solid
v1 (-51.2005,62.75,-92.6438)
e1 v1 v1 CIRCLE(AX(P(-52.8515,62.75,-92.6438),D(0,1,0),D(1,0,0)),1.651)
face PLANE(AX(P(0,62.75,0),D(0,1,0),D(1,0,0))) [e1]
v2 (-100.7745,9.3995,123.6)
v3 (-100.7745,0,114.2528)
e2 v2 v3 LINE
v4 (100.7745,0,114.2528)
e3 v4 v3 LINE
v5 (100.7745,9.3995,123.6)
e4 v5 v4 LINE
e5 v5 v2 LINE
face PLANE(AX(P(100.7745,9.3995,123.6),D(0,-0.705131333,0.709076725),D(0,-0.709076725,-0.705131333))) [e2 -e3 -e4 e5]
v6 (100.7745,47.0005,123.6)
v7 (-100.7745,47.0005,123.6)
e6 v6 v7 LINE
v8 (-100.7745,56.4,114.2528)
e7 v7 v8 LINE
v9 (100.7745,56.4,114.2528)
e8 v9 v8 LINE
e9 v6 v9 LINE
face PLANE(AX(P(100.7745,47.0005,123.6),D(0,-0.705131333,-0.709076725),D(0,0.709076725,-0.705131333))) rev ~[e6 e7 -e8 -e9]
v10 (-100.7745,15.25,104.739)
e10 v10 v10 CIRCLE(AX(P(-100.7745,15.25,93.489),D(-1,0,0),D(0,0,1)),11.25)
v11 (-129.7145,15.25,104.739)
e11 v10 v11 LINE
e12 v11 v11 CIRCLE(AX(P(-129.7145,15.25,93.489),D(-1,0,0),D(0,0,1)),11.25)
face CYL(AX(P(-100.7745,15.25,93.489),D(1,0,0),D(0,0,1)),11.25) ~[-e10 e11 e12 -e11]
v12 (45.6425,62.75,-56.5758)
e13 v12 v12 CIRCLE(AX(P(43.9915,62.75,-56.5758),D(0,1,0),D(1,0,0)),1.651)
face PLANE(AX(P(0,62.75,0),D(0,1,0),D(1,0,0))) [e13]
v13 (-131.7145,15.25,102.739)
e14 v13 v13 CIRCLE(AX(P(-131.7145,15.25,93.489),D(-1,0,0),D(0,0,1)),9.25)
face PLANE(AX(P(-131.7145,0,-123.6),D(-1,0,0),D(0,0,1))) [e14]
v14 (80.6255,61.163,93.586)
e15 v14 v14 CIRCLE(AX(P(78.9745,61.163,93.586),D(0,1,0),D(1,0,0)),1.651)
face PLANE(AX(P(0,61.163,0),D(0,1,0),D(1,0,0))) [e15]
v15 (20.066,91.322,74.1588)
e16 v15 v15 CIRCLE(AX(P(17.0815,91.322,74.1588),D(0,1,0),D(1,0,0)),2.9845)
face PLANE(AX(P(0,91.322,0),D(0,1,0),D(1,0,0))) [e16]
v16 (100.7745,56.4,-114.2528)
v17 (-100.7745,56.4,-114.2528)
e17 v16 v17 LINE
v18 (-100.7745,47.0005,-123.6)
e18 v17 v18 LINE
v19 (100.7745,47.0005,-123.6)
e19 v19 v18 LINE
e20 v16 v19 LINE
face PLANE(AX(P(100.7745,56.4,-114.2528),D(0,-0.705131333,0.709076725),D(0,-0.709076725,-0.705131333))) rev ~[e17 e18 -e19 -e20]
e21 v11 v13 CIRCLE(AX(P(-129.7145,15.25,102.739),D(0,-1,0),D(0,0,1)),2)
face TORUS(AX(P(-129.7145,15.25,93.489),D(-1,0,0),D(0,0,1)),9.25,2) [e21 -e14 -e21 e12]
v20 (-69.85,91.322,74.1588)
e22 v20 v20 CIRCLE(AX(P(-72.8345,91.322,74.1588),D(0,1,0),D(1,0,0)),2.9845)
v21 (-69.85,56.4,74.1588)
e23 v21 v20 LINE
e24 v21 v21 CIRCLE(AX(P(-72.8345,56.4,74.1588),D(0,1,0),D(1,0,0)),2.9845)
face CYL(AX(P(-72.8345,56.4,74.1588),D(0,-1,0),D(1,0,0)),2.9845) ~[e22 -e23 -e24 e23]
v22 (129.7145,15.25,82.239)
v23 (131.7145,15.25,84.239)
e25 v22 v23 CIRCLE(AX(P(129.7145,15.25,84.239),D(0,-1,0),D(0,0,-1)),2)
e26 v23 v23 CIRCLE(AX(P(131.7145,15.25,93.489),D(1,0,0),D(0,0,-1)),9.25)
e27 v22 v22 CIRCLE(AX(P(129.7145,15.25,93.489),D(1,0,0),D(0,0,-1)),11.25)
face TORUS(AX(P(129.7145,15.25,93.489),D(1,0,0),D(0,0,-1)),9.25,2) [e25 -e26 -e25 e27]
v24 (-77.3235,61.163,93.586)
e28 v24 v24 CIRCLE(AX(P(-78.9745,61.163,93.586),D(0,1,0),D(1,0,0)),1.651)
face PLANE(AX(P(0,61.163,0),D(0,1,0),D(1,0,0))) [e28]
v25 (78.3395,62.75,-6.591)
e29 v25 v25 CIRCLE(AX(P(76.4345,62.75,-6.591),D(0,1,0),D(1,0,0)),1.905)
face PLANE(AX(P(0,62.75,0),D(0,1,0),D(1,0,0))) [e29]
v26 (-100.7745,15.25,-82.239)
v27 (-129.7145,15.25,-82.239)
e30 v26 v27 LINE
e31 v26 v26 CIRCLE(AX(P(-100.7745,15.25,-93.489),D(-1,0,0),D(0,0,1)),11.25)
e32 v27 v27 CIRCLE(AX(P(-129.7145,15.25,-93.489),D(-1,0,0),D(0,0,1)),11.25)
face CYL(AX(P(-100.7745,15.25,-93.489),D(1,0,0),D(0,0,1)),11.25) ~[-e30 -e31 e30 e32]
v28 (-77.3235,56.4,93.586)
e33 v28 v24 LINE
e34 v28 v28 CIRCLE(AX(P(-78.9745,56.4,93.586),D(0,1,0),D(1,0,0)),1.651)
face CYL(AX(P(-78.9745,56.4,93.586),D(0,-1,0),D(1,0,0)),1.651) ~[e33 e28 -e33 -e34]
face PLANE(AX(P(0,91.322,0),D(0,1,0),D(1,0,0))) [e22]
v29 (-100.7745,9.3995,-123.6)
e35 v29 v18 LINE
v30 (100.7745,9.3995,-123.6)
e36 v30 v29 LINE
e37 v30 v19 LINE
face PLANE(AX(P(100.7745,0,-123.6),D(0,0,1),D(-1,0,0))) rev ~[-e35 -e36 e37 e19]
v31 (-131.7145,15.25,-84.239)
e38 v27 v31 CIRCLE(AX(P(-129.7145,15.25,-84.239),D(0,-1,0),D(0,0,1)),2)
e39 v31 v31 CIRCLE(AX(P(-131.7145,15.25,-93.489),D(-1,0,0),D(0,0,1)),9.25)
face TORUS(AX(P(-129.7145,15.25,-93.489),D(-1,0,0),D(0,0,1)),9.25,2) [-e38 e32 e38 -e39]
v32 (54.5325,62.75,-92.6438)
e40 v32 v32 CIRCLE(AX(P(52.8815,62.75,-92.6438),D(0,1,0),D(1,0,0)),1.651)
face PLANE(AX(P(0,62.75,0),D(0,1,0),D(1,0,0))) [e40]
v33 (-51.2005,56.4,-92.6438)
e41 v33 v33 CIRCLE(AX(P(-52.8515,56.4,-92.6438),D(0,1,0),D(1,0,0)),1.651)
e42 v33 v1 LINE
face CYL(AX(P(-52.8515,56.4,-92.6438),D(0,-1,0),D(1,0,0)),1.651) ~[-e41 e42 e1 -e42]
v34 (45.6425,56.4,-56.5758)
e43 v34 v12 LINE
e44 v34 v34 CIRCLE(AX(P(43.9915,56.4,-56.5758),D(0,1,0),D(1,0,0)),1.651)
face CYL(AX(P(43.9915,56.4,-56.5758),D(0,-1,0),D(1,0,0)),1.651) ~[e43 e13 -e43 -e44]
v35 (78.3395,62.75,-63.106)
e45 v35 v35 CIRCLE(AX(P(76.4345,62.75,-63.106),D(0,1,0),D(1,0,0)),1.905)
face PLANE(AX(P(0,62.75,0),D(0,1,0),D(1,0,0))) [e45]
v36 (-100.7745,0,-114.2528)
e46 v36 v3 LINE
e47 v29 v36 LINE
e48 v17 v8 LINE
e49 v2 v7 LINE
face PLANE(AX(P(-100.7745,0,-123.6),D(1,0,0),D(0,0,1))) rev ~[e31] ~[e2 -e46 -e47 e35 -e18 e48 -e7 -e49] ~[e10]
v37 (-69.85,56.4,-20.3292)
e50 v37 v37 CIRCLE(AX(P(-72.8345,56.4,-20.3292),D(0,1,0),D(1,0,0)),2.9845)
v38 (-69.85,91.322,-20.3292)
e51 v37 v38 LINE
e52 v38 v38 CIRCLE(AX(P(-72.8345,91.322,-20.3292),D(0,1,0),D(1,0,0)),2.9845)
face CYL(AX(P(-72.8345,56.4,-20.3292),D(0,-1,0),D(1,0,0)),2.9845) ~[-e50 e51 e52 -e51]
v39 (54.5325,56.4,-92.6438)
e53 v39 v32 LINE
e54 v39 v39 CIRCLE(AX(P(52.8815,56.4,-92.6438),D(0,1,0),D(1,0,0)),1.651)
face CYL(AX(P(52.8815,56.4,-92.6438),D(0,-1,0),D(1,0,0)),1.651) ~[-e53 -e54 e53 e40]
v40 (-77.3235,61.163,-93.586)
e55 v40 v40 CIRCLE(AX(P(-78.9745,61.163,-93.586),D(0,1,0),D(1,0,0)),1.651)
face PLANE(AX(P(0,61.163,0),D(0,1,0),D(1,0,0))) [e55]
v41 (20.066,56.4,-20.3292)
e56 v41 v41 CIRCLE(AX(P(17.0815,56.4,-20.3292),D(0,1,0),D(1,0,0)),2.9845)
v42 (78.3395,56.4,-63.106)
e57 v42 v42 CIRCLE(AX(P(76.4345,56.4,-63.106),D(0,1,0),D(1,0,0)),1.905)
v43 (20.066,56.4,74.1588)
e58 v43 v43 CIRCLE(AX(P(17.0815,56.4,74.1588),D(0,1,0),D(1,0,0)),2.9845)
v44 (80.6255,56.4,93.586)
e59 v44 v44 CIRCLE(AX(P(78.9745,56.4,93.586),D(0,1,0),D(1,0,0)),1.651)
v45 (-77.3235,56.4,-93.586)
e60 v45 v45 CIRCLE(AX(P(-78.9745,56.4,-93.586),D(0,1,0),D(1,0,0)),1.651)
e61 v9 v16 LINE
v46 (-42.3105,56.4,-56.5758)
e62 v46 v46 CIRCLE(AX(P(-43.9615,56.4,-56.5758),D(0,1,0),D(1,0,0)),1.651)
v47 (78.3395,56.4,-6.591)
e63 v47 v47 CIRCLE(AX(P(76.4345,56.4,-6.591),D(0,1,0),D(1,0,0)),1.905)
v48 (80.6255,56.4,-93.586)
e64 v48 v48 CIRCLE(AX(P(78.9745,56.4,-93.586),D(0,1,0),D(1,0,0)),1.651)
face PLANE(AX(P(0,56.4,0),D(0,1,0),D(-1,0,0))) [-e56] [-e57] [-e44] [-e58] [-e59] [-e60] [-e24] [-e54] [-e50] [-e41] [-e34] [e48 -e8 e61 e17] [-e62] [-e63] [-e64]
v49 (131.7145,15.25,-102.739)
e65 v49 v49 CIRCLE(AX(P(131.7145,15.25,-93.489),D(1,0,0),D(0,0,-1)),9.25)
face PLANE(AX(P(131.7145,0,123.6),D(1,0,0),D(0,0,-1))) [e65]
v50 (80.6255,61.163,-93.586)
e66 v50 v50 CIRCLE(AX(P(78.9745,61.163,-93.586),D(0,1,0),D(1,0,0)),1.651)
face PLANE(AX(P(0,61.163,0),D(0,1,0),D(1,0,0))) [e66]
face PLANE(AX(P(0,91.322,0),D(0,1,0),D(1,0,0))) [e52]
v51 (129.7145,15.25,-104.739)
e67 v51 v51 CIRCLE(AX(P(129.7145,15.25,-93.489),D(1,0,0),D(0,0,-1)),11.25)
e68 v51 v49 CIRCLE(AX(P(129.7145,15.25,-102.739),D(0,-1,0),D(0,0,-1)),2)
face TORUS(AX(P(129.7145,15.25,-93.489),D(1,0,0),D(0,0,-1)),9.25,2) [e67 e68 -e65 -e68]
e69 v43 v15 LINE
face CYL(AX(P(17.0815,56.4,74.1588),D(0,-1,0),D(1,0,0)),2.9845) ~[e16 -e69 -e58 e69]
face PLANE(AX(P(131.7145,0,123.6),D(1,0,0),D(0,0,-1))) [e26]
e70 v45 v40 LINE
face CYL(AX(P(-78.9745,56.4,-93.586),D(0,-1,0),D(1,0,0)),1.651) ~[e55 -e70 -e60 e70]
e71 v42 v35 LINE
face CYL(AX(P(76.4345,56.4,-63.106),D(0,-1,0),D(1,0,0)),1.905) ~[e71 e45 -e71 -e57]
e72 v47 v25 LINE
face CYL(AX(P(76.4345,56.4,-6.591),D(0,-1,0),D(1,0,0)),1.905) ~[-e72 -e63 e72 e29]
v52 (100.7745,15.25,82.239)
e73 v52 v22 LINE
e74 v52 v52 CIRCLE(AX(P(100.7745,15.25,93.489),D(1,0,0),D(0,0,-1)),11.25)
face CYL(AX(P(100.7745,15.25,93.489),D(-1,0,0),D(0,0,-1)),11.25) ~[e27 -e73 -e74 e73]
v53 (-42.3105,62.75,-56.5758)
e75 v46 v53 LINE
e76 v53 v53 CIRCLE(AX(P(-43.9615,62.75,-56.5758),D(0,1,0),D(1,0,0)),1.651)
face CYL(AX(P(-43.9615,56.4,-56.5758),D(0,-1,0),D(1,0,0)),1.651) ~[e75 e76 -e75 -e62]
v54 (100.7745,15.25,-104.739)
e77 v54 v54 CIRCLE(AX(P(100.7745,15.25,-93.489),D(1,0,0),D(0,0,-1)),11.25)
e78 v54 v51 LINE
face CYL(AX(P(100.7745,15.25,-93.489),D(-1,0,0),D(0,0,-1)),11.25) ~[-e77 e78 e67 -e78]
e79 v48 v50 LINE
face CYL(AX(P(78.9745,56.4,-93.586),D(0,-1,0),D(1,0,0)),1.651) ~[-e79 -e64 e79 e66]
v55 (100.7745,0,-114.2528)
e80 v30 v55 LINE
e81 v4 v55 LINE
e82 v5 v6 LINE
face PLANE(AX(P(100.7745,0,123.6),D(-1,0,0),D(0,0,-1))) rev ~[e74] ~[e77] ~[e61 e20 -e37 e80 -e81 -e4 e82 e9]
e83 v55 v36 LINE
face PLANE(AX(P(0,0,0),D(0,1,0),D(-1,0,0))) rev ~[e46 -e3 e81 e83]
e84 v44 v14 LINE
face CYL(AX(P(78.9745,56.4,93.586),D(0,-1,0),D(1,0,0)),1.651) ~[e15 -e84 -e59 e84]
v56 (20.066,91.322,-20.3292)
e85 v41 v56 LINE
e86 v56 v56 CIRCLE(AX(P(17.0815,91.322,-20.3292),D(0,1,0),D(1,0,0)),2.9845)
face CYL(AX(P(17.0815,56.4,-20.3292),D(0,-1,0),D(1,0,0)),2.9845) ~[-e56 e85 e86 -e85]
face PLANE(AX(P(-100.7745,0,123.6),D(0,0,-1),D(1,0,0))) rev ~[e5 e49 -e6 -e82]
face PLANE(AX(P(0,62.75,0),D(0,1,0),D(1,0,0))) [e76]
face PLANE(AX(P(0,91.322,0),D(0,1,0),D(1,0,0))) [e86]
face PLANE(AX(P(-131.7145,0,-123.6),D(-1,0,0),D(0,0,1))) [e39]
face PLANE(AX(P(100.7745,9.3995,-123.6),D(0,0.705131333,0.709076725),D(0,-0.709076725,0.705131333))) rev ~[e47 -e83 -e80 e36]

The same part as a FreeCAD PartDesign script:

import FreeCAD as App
import Part
import Sketcher
from FreeCAD import Vector
Q = App.Units.Quantity


def edges_at(feature, points):
    """Names of the edges that pass closest to the given points."""
    edges = feature.Shape.Edges
    near = lambda p: min(range(len(edges)), key=lambda i: edges[i].distToShape(Part.Vertex(*p))[0])
    return sorted({f"Edge{near(p) + 1}" for p in points})

doc = App.newDocument("Part")
body = doc.addObject("PartDesign::Body", "Body")

# Sketch on XZ plane
sketch1 = body.newObject("Sketcher::SketchObject", "Sketch")
sketch1.AttachmentSupport = (doc.getObject("XZ_Plane"), [""])
sketch1.MapMode = "FlatFace"
sketch1.addGeometry([
    Part.LineSegment(Vector(-101, -124, 0), Vector(-101, 124, 0)),
    Part.LineSegment(Vector(-101, 124, 0), Vector(101, 124, 0)),
    Part.LineSegment(Vector(101, 124, 0), Vector(101, -124, 0)),
    Part.LineSegment(Vector(101, -124, 0), Vector(-101, -124, 0)),
], False)
sketch1.addConstraint([
    Sketcher.Constraint("Coincident", 0, 2, 1, 1),
    Sketcher.Constraint("Coincident", 1, 2, 2, 1),
    Sketcher.Constraint("Coincident", 2, 2, 3, 1),
    Sketcher.Constraint("Coincident", 3, 2, 0, 1),
    Sketcher.Constraint("Vertical", 0),
    Sketcher.Constraint("Horizontal", 1),
    Sketcher.Constraint("Vertical", 2),
    Sketcher.Constraint("Horizontal", 3),
    Sketcher.Constraint("Symmetric", 0, 2, 2, 2, -1, 1),
    Sketcher.Constraint("DistanceX", 1, 1, 1, 2, Q("7.935 in")),
    Sketcher.Constraint("DistanceY", 0, 1, 0, 2, 247.2),
])
pad1 = body.newObject("PartDesign::Pad", "Pad")
pad1.Profile = sketch1
pad1.Length = 56.4
pad1.Reversed = True

# Sketch on YZ plane
sketch2 = body.newObject("Sketcher::SketchObject", "Sketch001")
sketch2.AttachmentSupport = (doc.getObject("YZ_Plane"), [""])
sketch2.MapMode = "FlatFace"
sketch2.AttachmentOffset = App.Placement(Vector(0, 0, 3.9675 * 25.4), App.Rotation())
sketch2.addGeometry([
    Part.Circle(Vector(15, 93, 0), Vector(0, 0, 1), 11),
    Part.Circle(Vector(15, -93, 0), Vector(0, 0, 1), 11),
], False)
sketch2.addConstraint([
    Sketcher.Constraint("Equal", 0, 1),
    Sketcher.Constraint("Symmetric", 0, 3, 1, 3, -1),
    Sketcher.Constraint("DistanceX", -1, 1, 0, 3, Q("0.6004 in")),
    Sketcher.Constraint("Diameter", 0, 22.5),
    Sketcher.Constraint("DistanceY", -1, 1, 0, 3, 93.489),
])
pad2 = body.newObject("PartDesign::Pad", "Pad001")
pad2.Profile = sketch2
pad2.Length = Q("1.2181102 in")

# Sketch on YZ plane
sketch3 = body.newObject("Sketcher::SketchObject", "Sketch002")
sketch3.AttachmentSupport = (doc.getObject("YZ_Plane"), [""])
sketch3.MapMode = "FlatFace"
sketch3.AttachmentOffset = App.Placement(Vector(0, 0, -3.9675 * 25.4), App.Rotation())
sketch3.addGeometry([
    Part.Circle(Vector(15, 93, 0), Vector(0, 0, 1), 11),
    Part.Circle(Vector(15, -93, 0), Vector(0, 0, 1), 11),
], False)
sketch3.addConstraint([
    Sketcher.Constraint("Equal", 0, 1),
    Sketcher.Constraint("Symmetric", 0, 3, 1, 3, -1),
    Sketcher.Constraint("Diameter", 0, 22.5),
    Sketcher.Constraint("DistanceX", -1, 1, 0, 3, Q("0.6004 in")),
    Sketcher.Constraint("DistanceY", -1, 1, 0, 3, 93.489),
])
pad3 = body.newObject("PartDesign::Pad", "Pad002")
pad3.Profile = sketch3
pad3.Length = Q("1.2181102 in")
pad3.Reversed = True

# Sketch on YZ plane
sketch4 = body.newObject("Sketcher::SketchObject", "Sketch003")
sketch4.AttachmentSupport = (doc.getObject("YZ_Plane"), [""])
sketch4.MapMode = "FlatFace"
sketch4.AttachmentOffset = App.Placement(Vector(0, 0, 3.9675 * 25.4), App.Rotation())
sketch4.addGeometry([
    Part.LineSegment(Vector(9, 124, 0), Vector(0, 124, 0)),  # 0
    Part.LineSegment(Vector(0, 124, 0), Vector(0, 114, 0)),  # 1
    Part.LineSegment(Vector(0, 114, 0), Vector(9, 124, 0)),  # 2
    Part.LineSegment(Vector(56, 124, 0), Vector(47, 124, 0)),  # 3
    Part.LineSegment(Vector(47, 124, 0), Vector(56, 114, 0)),  # 4
    Part.LineSegment(Vector(56, 114, 0), Vector(56, 124, 0)),  # 5
    Part.LineSegment(Vector(9, -124, 0), Vector(0, -114, 0)),  # 6
    Part.LineSegment(Vector(0, -114, 0), Vector(0, -124, 0)),  # 7
    Part.LineSegment(Vector(0, -124, 0), Vector(9, -124, 0)),  # 8
    Part.LineSegment(Vector(56, -124, 0), Vector(56, -114, 0)),  # 9
    Part.LineSegment(Vector(56, -114, 0), Vector(47, -124, 0)),  # 10
    Part.LineSegment(Vector(47, -124, 0), Vector(56, -124, 0)),  # 11
], False)
sketch4.addConstraint([
    Sketcher.Constraint("Coincident", 0, 2, 1, 1),
    Sketcher.Constraint("Coincident", 1, 2, 2, 1),
    Sketcher.Constraint("Coincident", 2, 2, 0, 1),
    Sketcher.Constraint("Coincident", 3, 2, 4, 1),
    Sketcher.Constraint("Coincident", 4, 2, 5, 1),
    Sketcher.Constraint("Coincident", 5, 2, 3, 1),
    Sketcher.Constraint("Coincident", 6, 2, 7, 1),
    Sketcher.Constraint("Coincident", 7, 2, 8, 1),
    Sketcher.Constraint("Coincident", 8, 2, 6, 1),
    Sketcher.Constraint("Coincident", 9, 2, 10, 1),
    Sketcher.Constraint("Coincident", 10, 2, 11, 1),
    Sketcher.Constraint("Coincident", 11, 2, 9, 1),
    Sketcher.Constraint("Horizontal", 0),
    Sketcher.Constraint("Vertical", 1),
    Sketcher.Constraint("Horizontal", 3),
    Sketcher.Constraint("Vertical", 5),
    Sketcher.Constraint("Vertical", 7),
    Sketcher.Constraint("Horizontal", 8),
    Sketcher.Constraint("Vertical", 9),
    Sketcher.Constraint("Horizontal", 11),
    Sketcher.Constraint("Symmetric", 1, 2, 6, 2, -1, 1),
    Sketcher.Constraint("Symmetric", 0, 2, 7, 2, -1),
    Sketcher.Constraint("Symmetric", 4, 2, 9, 2, -1),
    Sketcher.Constraint("Symmetric", 3, 2, 10, 2, -1),
    Sketcher.Constraint("Parallel", 4, 6),
    Sketcher.Constraint("Parallel", 2, 10),
    Sketcher.Constraint("Horizontal", 2, 2, 3, 2),
    Sketcher.Constraint("Horizontal", 1, 2, 4, 2),
    Sketcher.Constraint("Angle", 6, Q("135.1598 deg")),
    Sketcher.Constraint("Distance", 2, Q("0.5219 in")),
    Sketcher.Constraint("DistanceY", -1, 1, 0, 2, 123.6),
    Sketcher.Constraint("DistanceX", -1, 1, 3, 2, 47.0005),
])
pocket1 = body.newObject("PartDesign::Pocket", "Pocket")
pocket1.Profile = sketch4
pocket1.Type = "ThroughAll"

# Sketch on XZ plane
sketch5 = body.newObject("Sketcher::SketchObject", "Sketch004")
sketch5.AttachmentSupport = (doc.getObject("XZ_Plane"), [""])
sketch5.MapMode = "FlatFace"
sketch5.AttachmentOffset = App.Placement(Vector(0, 0, -56.4), App.Rotation())
sketch5.addGeometry([
    Part.Circle(Vector(79, 93.6, 0), Vector(0, 0, 1), 1.7),
    Part.Circle(Vector(79, -93.6, 0), Vector(0, 0, 1), 1.7),
    Part.Circle(Vector(-79, -93.6, 0), Vector(0, 0, 1), 1.7),
    Part.Circle(Vector(-79, 93.6, 0), Vector(0, 0, 1), 1.7),
], False)
sketch5.addConstraint([
    Sketcher.Constraint("Equal", 0, 1),
    Sketcher.Constraint("Equal", 1, 2),
    Sketcher.Constraint("Equal", 2, 3),
    Sketcher.Constraint("Symmetric", 0, 3, 2, 3, -1, 1),
    Sketcher.Constraint("Symmetric", 1, 3, 3, 3, -1, 1),
    Sketcher.Constraint("Symmetric", 1, 3, 2, 3, -2),
    Sketcher.Constraint("Diameter", 0, Q("0.13 in")),
    Sketcher.Constraint("DistanceY", -1, 1, 0, 3, Q("3.6845 in")),
    Sketcher.Constraint("DistanceX", -1, 1, 0, 3, 78.9745),
])
pad4 = body.newObject("PartDesign::Pad", "Pad003")
pad4.Profile = sketch5
pad4.Length = 4.763
pad4.Reversed = True

# Sketch on XZ plane
sketch6 = body.newObject("Sketcher::SketchObject", "Sketch005")
sketch6.AttachmentSupport = (doc.getObject("XZ_Plane"), [""])
sketch6.MapMode = "FlatFace"
sketch6.AttachmentOffset = App.Placement(Vector(0, 0, -56.4), App.Rotation())
sketch6.addGeometry([
    Part.Circle(Vector(76.4, -63.1, 0), Vector(0, 0, 1), 1.9),
    Part.Circle(Vector(76.4, -6.6, 0), Vector(0, 0, 1), 1.9),
], False)
sketch6.addConstraint([
    Sketcher.Constraint("Equal", 0, 1),
    Sketcher.Constraint("Vertical", 0, 3, 1, 3),
    Sketcher.Constraint("Diameter", 0, Q("0.15 in")),
    Sketcher.Constraint("DistanceY", 0, 3, 1, 3, Q("2.225 in")),
    Sketcher.Constraint("DistanceY", 0, 3, -1, 1, Q("2.4845 in")),
    Sketcher.Constraint("DistanceX", -1, 1, 0, 3, 76.4345),
])
pad5 = body.newObject("PartDesign::Pad", "Pad004")
pad5.Profile = sketch6
pad5.Length = Q("0.25 in")
pad5.Reversed = True
doc.recompute()

fillet = body.newObject("PartDesign::Fillet", "Fillet")
fillet.Base = (pad5, edges_at(pad5, [
    (131.714, 15.25, 104.739),
    (131.714, 15.25, -82.239),
    (-131.714, 15.25, -104.739),
    (-131.714, 15.25, 82.239),
]))
fillet.Radius = 2

# Sketch on XZ plane
sketch7 = body.newObject("Sketcher::SketchObject", "Sketch006")
sketch7.AttachmentSupport = (doc.getObject("XZ_Plane"), [""])
sketch7.MapMode = "FlatFace"
sketch7.AttachmentOffset = App.Placement(Vector(0, 0, -56.4), App.Rotation())
sketch7.addGeometry([
    Part.Circle(Vector(-44, -56.6, 0), Vector(0, 0, 1), 1.7),
    Part.Circle(Vector(-52.9, -92.6, 0), Vector(0, 0, 1), 1.7),
    Part.Circle(Vector(52.9, -92.6, 0), Vector(0, 0, 1), 1.7),
    Part.Circle(Vector(44, -56.6, 0), Vector(0, 0, 1), 1.7),
], False)
sketch7.addConstraint([
    Sketcher.Constraint("Equal", 0, 1),
    Sketcher.Constraint("Equal", 1, 2),
    Sketcher.Constraint("Equal", 2, 3),
    Sketcher.Constraint("Horizontal", 1, 3, 2, 3),
    Sketcher.Constraint("Horizontal", 0, 3, 3, 3),
    Sketcher.Constraint("Diameter", 0, Q("0.13 in")),
    Sketcher.Constraint("DistanceY", 1, 3, 0, 3, Q("1.42 in")),
    Sketcher.Constraint("DistanceX", 1, 3, 0, 3, Q("0.35 in")),
    Sketcher.Constraint("DistanceX", 1, 3, 2, 3, 105.733),
    Sketcher.Constraint("DistanceX", 3, 3, 2, 3, Q("0.35 in")),
    Sketcher.Constraint("DistanceY", 0, 3, -1, 1, Q("2.2274 in")),
    Sketcher.Constraint("DistanceX", 0, 3, -1, 1, 43.9615),
])
pad6 = body.newObject("PartDesign::Pad", "Pad005")
pad6.Profile = sketch7
pad6.Length = Q("0.25 in")
pad6.Reversed = True

# Sketch on XZ plane
sketch8 = body.newObject("Sketcher::SketchObject", "Sketch007")
sketch8.AttachmentSupport = (doc.getObject("XZ_Plane"), [""])
sketch8.MapMode = "FlatFace"
sketch8.AttachmentOffset = App.Placement(Vector(0, 0, -56.4), App.Rotation())
sketch8.addGeometry([
    Part.Circle(Vector(-72.8, -20.3, 0), Vector(0, 0, 1), 3),
    Part.Circle(Vector(17.1, -20.3, 0), Vector(0, 0, 1), 3),
    Part.Circle(Vector(17.1, 74.2, 0), Vector(0, 0, 1), 3),
    Part.Circle(Vector(-72.8, 74.2, 0), Vector(0, 0, 1), 3),
], False)
sketch8.addConstraint([
    Sketcher.Constraint("Equal", 0, 1),
    Sketcher.Constraint("Equal", 1, 2),
    Sketcher.Constraint("Equal", 2, 3),
    Sketcher.Constraint("Horizontal", 0, 3, 1, 3),
    Sketcher.Constraint("Horizontal", 2, 3, 3, 3),
    Sketcher.Constraint("Vertical", 1, 3, 2, 3),
    Sketcher.Constraint("Vertical", 0, 3, 3, 3),
    Sketcher.Constraint("Diameter", 0, Q("0.235 in")),
    Sketcher.Constraint("DistanceY", 1, 3, 2, 3, Q("3.72 in")),
    Sketcher.Constraint("DistanceX", 0, 3, 1, 3, Q("3.54 in")),
    Sketcher.Constraint("DistanceX", 0, 3, -1, 1, Q("2.8675 in")),
    Sketcher.Constraint("DistanceY", 0, 3, -1, 1, 20.3292),
])
pad7 = body.newObject("PartDesign::Pad", "Pad006")
pad7.Profile = sketch8
pad7.Length = 34.922
pad7.Reversed = True

doc.recompute()
